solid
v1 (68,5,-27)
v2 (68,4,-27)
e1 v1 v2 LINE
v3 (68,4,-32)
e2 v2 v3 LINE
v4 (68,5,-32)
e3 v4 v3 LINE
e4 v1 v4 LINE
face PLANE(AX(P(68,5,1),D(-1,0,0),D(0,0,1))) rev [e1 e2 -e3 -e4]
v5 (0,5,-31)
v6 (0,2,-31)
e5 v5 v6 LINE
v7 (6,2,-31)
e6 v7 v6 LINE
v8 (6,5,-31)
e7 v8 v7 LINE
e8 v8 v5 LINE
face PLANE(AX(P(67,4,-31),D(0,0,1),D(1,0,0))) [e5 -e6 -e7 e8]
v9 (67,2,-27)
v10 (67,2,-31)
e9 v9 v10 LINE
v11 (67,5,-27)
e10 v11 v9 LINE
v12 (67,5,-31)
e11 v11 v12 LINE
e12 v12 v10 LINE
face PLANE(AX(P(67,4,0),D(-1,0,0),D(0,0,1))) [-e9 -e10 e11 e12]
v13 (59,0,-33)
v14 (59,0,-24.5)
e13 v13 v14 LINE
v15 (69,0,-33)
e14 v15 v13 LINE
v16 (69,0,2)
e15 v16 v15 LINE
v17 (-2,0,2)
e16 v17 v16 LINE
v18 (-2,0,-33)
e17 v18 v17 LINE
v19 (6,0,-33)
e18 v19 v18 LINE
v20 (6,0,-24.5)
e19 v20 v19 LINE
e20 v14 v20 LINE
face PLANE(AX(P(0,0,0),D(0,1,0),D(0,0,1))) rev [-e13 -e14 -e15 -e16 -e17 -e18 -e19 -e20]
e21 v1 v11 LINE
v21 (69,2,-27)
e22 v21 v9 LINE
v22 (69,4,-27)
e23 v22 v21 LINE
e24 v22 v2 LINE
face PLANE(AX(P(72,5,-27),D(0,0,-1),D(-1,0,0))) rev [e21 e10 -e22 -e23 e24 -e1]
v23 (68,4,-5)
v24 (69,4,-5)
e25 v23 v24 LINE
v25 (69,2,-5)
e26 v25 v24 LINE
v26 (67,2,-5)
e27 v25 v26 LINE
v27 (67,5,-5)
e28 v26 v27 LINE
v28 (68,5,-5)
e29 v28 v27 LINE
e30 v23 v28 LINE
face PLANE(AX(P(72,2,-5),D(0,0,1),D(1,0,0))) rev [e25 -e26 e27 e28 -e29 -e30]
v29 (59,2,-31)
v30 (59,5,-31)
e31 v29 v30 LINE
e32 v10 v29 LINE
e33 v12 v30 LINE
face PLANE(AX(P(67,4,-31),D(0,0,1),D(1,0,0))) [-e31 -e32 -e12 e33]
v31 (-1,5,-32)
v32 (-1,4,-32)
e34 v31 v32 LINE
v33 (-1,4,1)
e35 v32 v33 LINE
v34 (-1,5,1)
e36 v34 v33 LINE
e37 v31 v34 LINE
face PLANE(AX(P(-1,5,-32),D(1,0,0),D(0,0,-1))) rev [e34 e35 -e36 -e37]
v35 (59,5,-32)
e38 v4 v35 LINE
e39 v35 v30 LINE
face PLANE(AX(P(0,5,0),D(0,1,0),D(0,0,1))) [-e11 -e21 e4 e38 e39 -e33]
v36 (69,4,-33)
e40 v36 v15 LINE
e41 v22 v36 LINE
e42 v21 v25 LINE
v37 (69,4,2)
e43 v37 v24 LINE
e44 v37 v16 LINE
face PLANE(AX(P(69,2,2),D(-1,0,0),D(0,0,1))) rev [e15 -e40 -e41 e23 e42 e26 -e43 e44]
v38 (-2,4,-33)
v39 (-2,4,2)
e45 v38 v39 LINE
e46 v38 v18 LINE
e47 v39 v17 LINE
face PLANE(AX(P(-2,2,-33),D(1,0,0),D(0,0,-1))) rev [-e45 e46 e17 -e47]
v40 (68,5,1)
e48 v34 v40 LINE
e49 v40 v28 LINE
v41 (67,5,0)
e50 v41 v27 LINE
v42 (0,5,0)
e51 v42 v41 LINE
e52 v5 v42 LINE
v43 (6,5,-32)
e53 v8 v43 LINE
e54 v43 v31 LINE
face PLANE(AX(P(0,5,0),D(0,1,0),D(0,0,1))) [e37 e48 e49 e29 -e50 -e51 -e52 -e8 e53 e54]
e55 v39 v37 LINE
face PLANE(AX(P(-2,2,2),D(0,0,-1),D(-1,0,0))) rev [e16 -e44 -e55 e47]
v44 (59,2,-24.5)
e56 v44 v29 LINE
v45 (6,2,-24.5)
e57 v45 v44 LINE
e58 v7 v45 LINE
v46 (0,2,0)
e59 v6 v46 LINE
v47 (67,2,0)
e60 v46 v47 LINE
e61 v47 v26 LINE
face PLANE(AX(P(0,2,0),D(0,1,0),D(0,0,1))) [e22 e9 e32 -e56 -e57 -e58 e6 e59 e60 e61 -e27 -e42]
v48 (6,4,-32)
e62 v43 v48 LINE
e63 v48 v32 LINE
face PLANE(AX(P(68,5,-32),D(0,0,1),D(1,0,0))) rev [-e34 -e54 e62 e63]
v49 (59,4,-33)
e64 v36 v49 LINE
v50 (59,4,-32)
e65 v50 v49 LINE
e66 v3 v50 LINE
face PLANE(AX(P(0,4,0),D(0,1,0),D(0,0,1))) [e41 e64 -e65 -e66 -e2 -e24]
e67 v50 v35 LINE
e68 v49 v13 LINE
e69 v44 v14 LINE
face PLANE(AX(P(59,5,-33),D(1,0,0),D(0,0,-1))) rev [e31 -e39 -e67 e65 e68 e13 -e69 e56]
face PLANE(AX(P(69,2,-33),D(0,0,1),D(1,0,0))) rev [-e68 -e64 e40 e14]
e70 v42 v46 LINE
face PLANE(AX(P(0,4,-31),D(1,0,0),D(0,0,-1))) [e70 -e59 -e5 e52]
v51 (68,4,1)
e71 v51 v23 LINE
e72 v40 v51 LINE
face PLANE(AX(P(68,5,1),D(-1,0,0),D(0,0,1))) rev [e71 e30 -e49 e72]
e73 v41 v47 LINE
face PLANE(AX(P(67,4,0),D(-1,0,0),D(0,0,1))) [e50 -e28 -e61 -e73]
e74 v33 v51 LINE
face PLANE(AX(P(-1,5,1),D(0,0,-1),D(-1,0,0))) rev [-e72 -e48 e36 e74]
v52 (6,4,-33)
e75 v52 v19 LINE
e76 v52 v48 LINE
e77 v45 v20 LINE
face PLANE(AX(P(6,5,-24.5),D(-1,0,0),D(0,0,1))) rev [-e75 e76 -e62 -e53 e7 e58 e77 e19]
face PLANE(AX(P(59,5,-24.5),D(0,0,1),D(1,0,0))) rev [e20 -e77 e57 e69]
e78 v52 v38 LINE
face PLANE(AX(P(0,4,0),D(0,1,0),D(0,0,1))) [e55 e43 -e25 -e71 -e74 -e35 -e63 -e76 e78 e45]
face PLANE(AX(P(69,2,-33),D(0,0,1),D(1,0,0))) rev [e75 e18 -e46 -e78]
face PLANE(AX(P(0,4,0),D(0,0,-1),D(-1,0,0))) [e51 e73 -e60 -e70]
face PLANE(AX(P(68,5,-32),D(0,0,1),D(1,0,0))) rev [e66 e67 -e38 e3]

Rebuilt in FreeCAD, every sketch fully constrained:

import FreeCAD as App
import Part
import Sketcher
Q = App.Units.Quantity


def add_polygon(sketch, points):
    """Adds a closed chain of lines whose ends are joined by coincident constraints."""
    first, n = sketch.GeometryCount, len(points)
    for a, b in zip(points, points[1:] + points[:1]):
        sketch.addGeometry(Part.LineSegment(App.Vector(*a, 0), App.Vector(*b, 0)), False)
    for i in range(n):
        sketch.addConstraint(Sketcher.Constraint("Coincident", first + i, 2, first + (i + 1) % n, 1))

doc = App.newDocument("Part")
body = doc.addObject("PartDesign::Body", "Body")

# Sketch on XZ plane
sketch1 = body.newObject("Sketcher::SketchObject", "Sketch")
sketch1.AttachmentSupport = (doc.getObject("XZ_Plane"), [""])
sketch1.MapMode = "FlatFace"
add_polygon(sketch1, [(-2, -33), (-2, 2), (69, 2), (69, -33)])  # lines 0-3
sketch1.addConstraint([
    Sketcher.Constraint("Vertical", 0),
    Sketcher.Constraint("Horizontal", 1),
    Sketcher.Constraint("Vertical", 2),
    Sketcher.Constraint("Horizontal", 3),
    Sketcher.Constraint("DistanceX", 1, 1, 1, 2, Q("71 mm")),
    Sketcher.Constraint("DistanceY", 0, 1, 0, 2, Q("35 mm")),
    Sketcher.Constraint("DistanceX", 0, 2, -1, 1, Q("2 mm")),
    Sketcher.Constraint("DistanceY", -1, 1, 0, 2, Q("2 mm")),
])
pad1 = body.newObject("PartDesign::Pad", "Pad")
pad1.Profile = sketch1
pad1.Length = 2
pad1.Reversed = True

# Sketch on XZ plane
sketch2 = body.newObject("Sketcher::SketchObject", "Sketch001")
sketch2.AttachmentSupport = (doc.getObject("XZ_Plane"), [""])
sketch2.MapMode = "FlatFace"
sketch2.AttachmentOffset = App.Placement(App.Vector(0, 0, -2), App.Rotation())
add_polygon(sketch2, [(-2, -33), (-2, 2), (69, 2), (69, -33)])  # lines 0-3
add_polygon(sketch2, [(67, 0), (0, 0), (0, -31), (67, -31)])  # lines 4-7
sketch2.addConstraint([
    Sketcher.Constraint("Vertical", 0),
    Sketcher.Constraint("Horizontal", 1),
    Sketcher.Constraint("Vertical", 2),
    Sketcher.Constraint("Horizontal", 3),
    Sketcher.Constraint("Horizontal", 4),
    Sketcher.Constraint("Vertical", 5),
    Sketcher.Constraint("Horizontal", 6),
    Sketcher.Constraint("Vertical", 7),
    Sketcher.Constraint("Coincident", 4, 2, -1, 1),
    Sketcher.Constraint("DistanceX", 1, 1, 1, 2, Q("71 mm")),
    Sketcher.Constraint("DistanceX", 4, 2, 4, 1, Q("67 mm")),
    Sketcher.Constraint("DistanceY", 0, 1, 0, 2, Q("35 mm")),
    Sketcher.Constraint("DistanceY", 5, 2, 5, 1, Q("31 mm")),
    Sketcher.Constraint("DistanceX", 0, 2, -1, 1, Q("2 mm")),
    Sketcher.Constraint("DistanceY", -1, 1, 0, 2, Q("2 mm")),
])
pad2 = body.newObject("PartDesign::Pad", "Pad001")
pad2.Profile = sketch2
pad2.Length = 2
pad2.Reversed = True

# Sketch on XZ plane
sketch3 = body.newObject("Sketcher::SketchObject", "Sketch002")
sketch3.AttachmentSupport = (doc.getObject("XZ_Plane"), [""])
sketch3.MapMode = "FlatFace"
sketch3.AttachmentOffset = App.Placement(App.Vector(0, 0, -4), App.Rotation())
add_polygon(sketch3, [(-1, -32), (-1, 1), (68, 1), (68, -32)])  # lines 0-3
add_polygon(sketch3, [(67, 0), (0, 0), (0, -31), (67, -31)])  # lines 4-7
sketch3.addConstraint([
    Sketcher.Constraint("Vertical", 0),
    Sketcher.Constraint("Horizontal", 1),
    Sketcher.Constraint("Vertical", 2),
    Sketcher.Constraint("Horizontal", 3),
    Sketcher.Constraint("Horizontal", 4),
    Sketcher.Constraint("Vertical", 5),
    Sketcher.Constraint("Horizontal", 6),
    Sketcher.Constraint("Vertical", 7),
    Sketcher.Constraint("Coincident", 4, 2, -1, 1),
    Sketcher.Constraint("DistanceX", 1, 1, 1, 2, Q("69 mm")),
    Sketcher.Constraint("DistanceX", 4, 2, 4, 1, Q("67 mm")),
    Sketcher.Constraint("DistanceY", 0, 1, 0, 2, Q("33 mm")),
    Sketcher.Constraint("DistanceY", 5, 2, 5, 1, Q("31 mm")),
    Sketcher.Constraint("DistanceX", 0, 2, -1, 1, Q("1 mm")),
    Sketcher.Constraint("DistanceY", -1, 1, 0, 2, Q("1 mm")),
])
pad3 = body.newObject("PartDesign::Pad", "Pad002")
pad3.Profile = sketch3
pad3.Length = 1
pad3.Reversed = True

# Sketch on YZ plane
sketch4 = body.newObject("Sketcher::SketchObject", "Sketch003")
sketch4.AttachmentSupport = (doc.getObject("YZ_Plane"), [""])
sketch4.MapMode = "FlatFace"
sketch4.AttachmentOffset = App.Placement(App.Vector(0, 0, 67), App.Rotation())
add_polygon(sketch4, [(5, -27), (2, -27), (2, -5), (5, -5)])  # lines 0-3
sketch4.addConstraint([
    Sketcher.Constraint("Horizontal", 0),
    Sketcher.Constraint("Vertical", 1),
    Sketcher.Constraint("Horizontal", 2),
    Sketcher.Constraint("Vertical", 3),
    Sketcher.Constraint("DistanceX", 0, 2, 0, 1, Q("3 mm")),
    Sketcher.Constraint("DistanceY", 1, 1, 1, 2, Q("22 mm")),
    Sketcher.Constraint("DistanceX", -1, 1, 0, 2, Q("2 mm")),
    Sketcher.Constraint("DistanceY", 0, 2, -1, 1, Q("27 mm")),
])
pocket1 = body.newObject("PartDesign::Pocket", "Pocket")
pocket1.Profile = sketch4
pocket1.Length = 5
pocket1.Reversed = True

# Sketch on XZ plane
sketch5 = body.newObject("Sketcher::SketchObject", "Sketch004")
sketch5.AttachmentSupport = (doc.getObject("XZ_Plane"), [""])
sketch5.MapMode = "FlatFace"
add_polygon(sketch5, [(6, -24), (6, -33), (59, -33), (59, -24)])  # lines 0-3
sketch5.addConstraint([
    Sketcher.Constraint("Vertical", 0),
    Sketcher.Constraint("Horizontal", 1),
    Sketcher.Constraint("Vertical", 2),
    Sketcher.Constraint("Horizontal", 3),
    Sketcher.Constraint("DistanceX", 1, 1, 1, 2, Q("53 mm")),
    Sketcher.Constraint("DistanceY", 0, 2, 0, 1, Q("8.5 mm")),
    Sketcher.Constraint("DistanceX", -1, 1, 0, 2, Q("6 mm")),
    Sketcher.Constraint("DistanceY", 0, 2, -1, 1, Q("33 mm")),
])
pocket2 = body.newObject("PartDesign::Pocket", "Pocket001")
pocket2.Profile = sketch5
pocket2.Length = 5

doc.recompute()
